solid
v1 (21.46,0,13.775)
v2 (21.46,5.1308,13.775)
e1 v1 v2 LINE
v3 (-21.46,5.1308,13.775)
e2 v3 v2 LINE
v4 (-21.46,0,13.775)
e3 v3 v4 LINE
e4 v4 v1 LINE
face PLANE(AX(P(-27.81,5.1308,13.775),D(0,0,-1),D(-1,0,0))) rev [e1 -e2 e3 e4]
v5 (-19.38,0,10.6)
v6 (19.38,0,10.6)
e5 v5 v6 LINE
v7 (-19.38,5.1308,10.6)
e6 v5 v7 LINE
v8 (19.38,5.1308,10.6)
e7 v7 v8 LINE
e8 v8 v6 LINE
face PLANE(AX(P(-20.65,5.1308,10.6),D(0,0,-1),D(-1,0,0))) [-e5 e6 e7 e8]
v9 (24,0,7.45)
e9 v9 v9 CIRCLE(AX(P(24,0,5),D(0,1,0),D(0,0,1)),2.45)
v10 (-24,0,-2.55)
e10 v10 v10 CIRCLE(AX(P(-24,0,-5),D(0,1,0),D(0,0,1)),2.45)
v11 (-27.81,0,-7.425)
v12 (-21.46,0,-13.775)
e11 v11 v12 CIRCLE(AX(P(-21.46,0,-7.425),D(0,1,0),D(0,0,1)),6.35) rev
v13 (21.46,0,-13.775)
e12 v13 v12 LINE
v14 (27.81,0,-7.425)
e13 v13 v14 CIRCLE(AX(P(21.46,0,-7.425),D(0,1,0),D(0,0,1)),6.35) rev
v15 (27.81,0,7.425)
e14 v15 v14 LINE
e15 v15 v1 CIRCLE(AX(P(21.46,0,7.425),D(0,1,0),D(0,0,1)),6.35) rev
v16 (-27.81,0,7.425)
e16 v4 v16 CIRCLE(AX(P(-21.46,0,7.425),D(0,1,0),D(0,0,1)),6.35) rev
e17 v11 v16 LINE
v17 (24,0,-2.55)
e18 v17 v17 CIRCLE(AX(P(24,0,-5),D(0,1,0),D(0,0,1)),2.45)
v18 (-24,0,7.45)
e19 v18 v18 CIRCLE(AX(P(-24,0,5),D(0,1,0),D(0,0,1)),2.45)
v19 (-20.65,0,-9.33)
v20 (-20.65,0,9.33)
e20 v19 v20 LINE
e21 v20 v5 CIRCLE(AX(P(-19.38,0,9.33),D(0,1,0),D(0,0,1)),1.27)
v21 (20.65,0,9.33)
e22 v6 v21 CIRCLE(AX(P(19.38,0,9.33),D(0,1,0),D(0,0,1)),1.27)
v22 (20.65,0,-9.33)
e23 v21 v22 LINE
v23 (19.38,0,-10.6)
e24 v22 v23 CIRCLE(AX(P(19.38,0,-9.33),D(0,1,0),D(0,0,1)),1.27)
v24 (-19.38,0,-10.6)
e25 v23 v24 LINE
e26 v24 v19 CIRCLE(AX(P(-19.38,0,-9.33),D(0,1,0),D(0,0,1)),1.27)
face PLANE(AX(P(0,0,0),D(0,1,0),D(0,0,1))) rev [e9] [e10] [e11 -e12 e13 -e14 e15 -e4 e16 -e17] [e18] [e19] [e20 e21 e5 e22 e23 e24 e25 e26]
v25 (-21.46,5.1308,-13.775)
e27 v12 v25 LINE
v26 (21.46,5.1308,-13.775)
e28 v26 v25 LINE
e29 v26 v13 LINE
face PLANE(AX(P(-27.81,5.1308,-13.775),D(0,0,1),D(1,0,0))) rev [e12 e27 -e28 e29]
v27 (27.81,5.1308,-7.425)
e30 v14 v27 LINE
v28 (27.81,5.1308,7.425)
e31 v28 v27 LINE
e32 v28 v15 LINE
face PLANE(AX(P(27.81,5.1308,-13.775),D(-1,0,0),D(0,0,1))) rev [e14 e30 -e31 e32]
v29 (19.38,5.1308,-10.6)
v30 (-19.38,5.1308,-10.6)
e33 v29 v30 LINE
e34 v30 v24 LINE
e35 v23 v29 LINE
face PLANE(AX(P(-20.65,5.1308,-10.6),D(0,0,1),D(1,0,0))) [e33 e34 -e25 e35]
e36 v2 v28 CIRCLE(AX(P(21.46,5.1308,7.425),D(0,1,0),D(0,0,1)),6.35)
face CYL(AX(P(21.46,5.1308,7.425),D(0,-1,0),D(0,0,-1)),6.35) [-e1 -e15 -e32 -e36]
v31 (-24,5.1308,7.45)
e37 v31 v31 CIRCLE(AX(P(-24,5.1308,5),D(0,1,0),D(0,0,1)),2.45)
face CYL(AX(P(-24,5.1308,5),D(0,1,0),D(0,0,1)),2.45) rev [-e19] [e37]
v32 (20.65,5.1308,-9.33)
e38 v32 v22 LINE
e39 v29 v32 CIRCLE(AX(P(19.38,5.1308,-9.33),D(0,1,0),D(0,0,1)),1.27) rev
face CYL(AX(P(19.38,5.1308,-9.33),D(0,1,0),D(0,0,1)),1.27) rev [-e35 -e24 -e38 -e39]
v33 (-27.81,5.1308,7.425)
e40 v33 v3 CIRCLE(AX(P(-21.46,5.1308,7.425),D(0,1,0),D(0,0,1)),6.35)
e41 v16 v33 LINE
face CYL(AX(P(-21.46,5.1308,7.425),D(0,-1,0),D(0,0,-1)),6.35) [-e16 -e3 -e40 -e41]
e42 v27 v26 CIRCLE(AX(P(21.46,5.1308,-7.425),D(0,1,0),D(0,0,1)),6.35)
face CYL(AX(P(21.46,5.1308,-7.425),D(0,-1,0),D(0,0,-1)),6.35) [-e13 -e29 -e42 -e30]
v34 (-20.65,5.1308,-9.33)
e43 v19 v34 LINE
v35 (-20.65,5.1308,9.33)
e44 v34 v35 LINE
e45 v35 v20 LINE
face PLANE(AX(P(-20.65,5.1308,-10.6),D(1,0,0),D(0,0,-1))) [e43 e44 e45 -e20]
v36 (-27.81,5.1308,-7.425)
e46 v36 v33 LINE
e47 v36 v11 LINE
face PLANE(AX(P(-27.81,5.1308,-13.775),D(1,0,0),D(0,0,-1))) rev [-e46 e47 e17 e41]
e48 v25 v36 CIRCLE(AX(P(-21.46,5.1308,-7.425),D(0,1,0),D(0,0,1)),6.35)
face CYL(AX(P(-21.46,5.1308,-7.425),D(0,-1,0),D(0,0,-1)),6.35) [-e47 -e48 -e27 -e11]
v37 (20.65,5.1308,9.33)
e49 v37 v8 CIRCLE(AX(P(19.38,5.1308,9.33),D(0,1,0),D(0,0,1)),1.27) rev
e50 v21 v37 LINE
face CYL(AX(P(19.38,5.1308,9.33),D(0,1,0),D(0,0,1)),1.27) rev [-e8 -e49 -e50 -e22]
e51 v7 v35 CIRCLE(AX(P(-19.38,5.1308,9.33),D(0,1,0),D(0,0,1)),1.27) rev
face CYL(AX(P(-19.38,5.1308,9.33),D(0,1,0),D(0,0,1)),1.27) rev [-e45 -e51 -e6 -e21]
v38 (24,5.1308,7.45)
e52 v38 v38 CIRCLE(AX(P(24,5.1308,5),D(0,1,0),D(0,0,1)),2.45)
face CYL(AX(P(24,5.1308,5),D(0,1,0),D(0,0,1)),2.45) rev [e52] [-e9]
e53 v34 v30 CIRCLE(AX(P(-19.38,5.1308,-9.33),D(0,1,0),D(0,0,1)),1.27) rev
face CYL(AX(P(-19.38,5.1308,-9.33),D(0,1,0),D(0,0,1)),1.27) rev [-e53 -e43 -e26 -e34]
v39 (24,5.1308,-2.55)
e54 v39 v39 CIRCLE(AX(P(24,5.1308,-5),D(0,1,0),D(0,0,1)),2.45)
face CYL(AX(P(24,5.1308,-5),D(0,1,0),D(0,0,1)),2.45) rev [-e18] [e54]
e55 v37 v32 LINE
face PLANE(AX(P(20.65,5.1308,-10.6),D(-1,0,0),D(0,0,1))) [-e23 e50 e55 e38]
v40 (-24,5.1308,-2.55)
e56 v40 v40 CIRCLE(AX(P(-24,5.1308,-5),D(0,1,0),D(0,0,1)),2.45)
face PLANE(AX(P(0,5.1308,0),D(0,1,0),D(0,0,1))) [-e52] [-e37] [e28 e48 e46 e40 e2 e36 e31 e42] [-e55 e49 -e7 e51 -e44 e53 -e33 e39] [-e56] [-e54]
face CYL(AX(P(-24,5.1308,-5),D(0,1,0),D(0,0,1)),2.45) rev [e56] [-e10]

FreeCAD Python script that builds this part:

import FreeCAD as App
import Part
import Sketcher


def edges_at(feature, points):
    """Names of the edges that pass closest to the given points."""
    edges = feature.Shape.Edges
    near = lambda p: min(range(len(edges)), key=lambda i: edges[i].distToShape(Part.Vertex(*p))[0])
    return sorted({f"Edge{near(p) + 1}" for p in points})

doc = App.newDocument("Part")
params = doc.addObject("Spreadsheet::Sheet", "Params")
for row, (alias, value) in enumerate([
    ("sketch1_width", "41.3 mm"),
    ("sketch1_height", "21.2 mm"),
    ("sketch1_width2", "55.62 mm"),
    ("sketch1_height2", "27.55 mm"),
    ("pad1_length", "5.1308 mm"),
    ("sketch2_diameter", "4.9 mm"),
    ("hole_diameter", "4.9 mm"),
    ("fillet_radius", "6.35 mm"),
    ("fillet2_radius", "1.27 mm"),
], start=1):
    params.set(f"A{row}", alias)
    params.set(f"B{row}", "=" + value)
    params.setAlias(f"B{row}", alias)

body = doc.addObject("PartDesign::Body", "Body")

# Sketch on XZ plane
sketch1 = body.newObject("Sketcher::SketchObject", "Sketch")
sketch1.AttachmentSupport = (doc.getObject("XZ_Plane"), [""])
sketch1.MapMode = "FlatFace"
sketch1.addGeometry(Part.LineSegment(App.Vector(-28, -14, 0), App.Vector(-28, 14, 0)), False)
sketch1.addGeometry(Part.LineSegment(App.Vector(-28, 14, 0), App.Vector(28, 14, 0)), False)
sketch1.addGeometry(Part.LineSegment(App.Vector(28, 14, 0), App.Vector(28, -14, 0)), False)
sketch1.addGeometry(Part.LineSegment(App.Vector(28, -14, 0), App.Vector(-28, -14, 0)), False)
sketch1.addGeometry(Part.LineSegment(App.Vector(21, 11, 0), App.Vector(-21, 11, 0)), False)
sketch1.addGeometry(Part.LineSegment(App.Vector(-21, 11, 0), App.Vector(-21, -11, 0)), False)
sketch1.addGeometry(Part.LineSegment(App.Vector(-21, -11, 0), App.Vector(21, -11, 0)), False)
sketch1.addGeometry(Part.LineSegment(App.Vector(21, -11, 0), App.Vector(21, 11, 0)), False)
sketch1.addConstraint(Sketcher.Constraint("Coincident", 0, 2, 1, 1))
sketch1.addConstraint(Sketcher.Constraint("Coincident", 1, 2, 2, 1))
sketch1.addConstraint(Sketcher.Constraint("Coincident", 2, 2, 3, 1))
sketch1.addConstraint(Sketcher.Constraint("Coincident", 3, 2, 0, 1))
sketch1.addConstraint(Sketcher.Constraint("Coincident", 4, 2, 5, 1))
sketch1.addConstraint(Sketcher.Constraint("Coincident", 5, 2, 6, 1))
sketch1.addConstraint(Sketcher.Constraint("Coincident", 6, 2, 7, 1))
sketch1.addConstraint(Sketcher.Constraint("Coincident", 7, 2, 4, 1))
sketch1.addConstraint(Sketcher.Constraint("Vertical", 0))
sketch1.addConstraint(Sketcher.Constraint("Horizontal", 1))
sketch1.addConstraint(Sketcher.Constraint("Vertical", 2))
sketch1.addConstraint(Sketcher.Constraint("Horizontal", 3))
sketch1.addConstraint(Sketcher.Constraint("Horizontal", 4))
sketch1.addConstraint(Sketcher.Constraint("Vertical", 5))
sketch1.addConstraint(Sketcher.Constraint("Horizontal", 6))
sketch1.addConstraint(Sketcher.Constraint("Vertical", 7))
sketch1.addConstraint(Sketcher.Constraint("Symmetric", 0, 2, 2, 2, -1, 1))
sketch1.addConstraint(Sketcher.Constraint("Symmetric", 4, 2, 6, 2, -1, 1))
sketch1.addConstraint(Sketcher.Constraint("DistanceX", 4, 2, 4, 1, 41.3))
sketch1.addConstraint(Sketcher.Constraint("DistanceY", 5, 2, 5, 1, 21.2))
sketch1.addConstraint(Sketcher.Constraint("DistanceX", 1, 1, 1, 2, 55.62))
sketch1.addConstraint(Sketcher.Constraint("DistanceY", 0, 1, 0, 2, 27.55))
sketch1.setExpression("Constraints[18]", "Params.sketch1_width")
sketch1.setExpression("Constraints[19]", "Params.sketch1_height")
sketch1.setExpression("Constraints[20]", "Params.sketch1_width2")
sketch1.setExpression("Constraints[21]", "Params.sketch1_height2")
pad1 = body.newObject("PartDesign::Pad", "Pad")
pad1.Profile = sketch1
pad1.setExpression("Length", "Params.pad1_length")
pad1.Reversed = True

# Sketch on XZ plane
sketch2 = body.newObject("Sketcher::SketchObject", "Sketch001")
sketch2.AttachmentSupport = (doc.getObject("XZ_Plane"), [""])
sketch2.MapMode = "FlatFace"
sketch2.AttachmentOffset = App.Placement(App.Vector(0, 0, -5.1308), App.Rotation())
sketch2.addGeometry(Part.Circle(App.Vector(24, 5, 0), App.Vector(0, 0, 1), 2.5), False)
sketch2.addGeometry(Part.Circle(App.Vector(-24, -5, 0), App.Vector(0, 0, 1), 2.5), False)
sketch2.addGeometry(Part.Circle(App.Vector(-24, 5, 0), App.Vector(0, 0, 1), 2.5), False)
sketch2.addGeometry(Part.Circle(App.Vector(24, -5, 0), App.Vector(0, 0, 1), 2.5), False)
sketch2.addConstraint(Sketcher.Constraint("Equal", 0, 1))
sketch2.addConstraint(Sketcher.Constraint("Equal", 1, 2))
sketch2.addConstraint(Sketcher.Constraint("Equal", 2, 3))
sketch2.addConstraint(Sketcher.Constraint("Symmetric", 0, 3, 1, 3, -1, 1))
sketch2.addConstraint(Sketcher.Constraint("Symmetric", 2, 3, 3, 3, -1, 1))
sketch2.addConstraint(Sketcher.Constraint("Symmetric", 0, 3, 2, 3, -2))
sketch2.addConstraint(Sketcher.Constraint("Diameter", 0, 4.9))
sketch2.addConstraint(Sketcher.Constraint("DistanceX", -1, 1, 0, 3, 24.0))
sketch2.addConstraint(Sketcher.Constraint("DistanceY", -1, 1, 0, 3, 5.0))
sketch2.setExpression("Constraints[6]", "Params.sketch2_diameter")
doc.recompute()
hole = body.newObject("PartDesign::Hole", "Hole")
hole.Profile = sketch2
hole.ThreadType = "None"
hole.setExpression("Diameter", "Params.hole_diameter")
hole.DepthType = "ThroughAll"
hole.Reversed = True
doc.recompute()

fillet = body.newObject("PartDesign::Fillet", "Fillet")
fillet.Base = (hole, edges_at(hole, [
    (27.81, 2.565, 13.775),
    (-27.81, 2.565, 13.775),
    (-27.81, 2.565, -13.775),
    (27.81, 2.565, -13.775),
]))
fillet.setExpression("Radius", "Params.fillet_radius")
doc.recompute()

fillet2 = body.newObject("PartDesign::Fillet", "Fillet001")
fillet2.Base = (fillet, edges_at(fillet, [
    (20.65, 2.565, 10.6),
    (20.65, 2.565, -10.6),
    (-20.65, 2.565, -10.6),
    (-20.65, 2.565, 10.6),
]))
fillet2.setExpression("Radius", "Params.fillet2_radius")

doc.recompute()
